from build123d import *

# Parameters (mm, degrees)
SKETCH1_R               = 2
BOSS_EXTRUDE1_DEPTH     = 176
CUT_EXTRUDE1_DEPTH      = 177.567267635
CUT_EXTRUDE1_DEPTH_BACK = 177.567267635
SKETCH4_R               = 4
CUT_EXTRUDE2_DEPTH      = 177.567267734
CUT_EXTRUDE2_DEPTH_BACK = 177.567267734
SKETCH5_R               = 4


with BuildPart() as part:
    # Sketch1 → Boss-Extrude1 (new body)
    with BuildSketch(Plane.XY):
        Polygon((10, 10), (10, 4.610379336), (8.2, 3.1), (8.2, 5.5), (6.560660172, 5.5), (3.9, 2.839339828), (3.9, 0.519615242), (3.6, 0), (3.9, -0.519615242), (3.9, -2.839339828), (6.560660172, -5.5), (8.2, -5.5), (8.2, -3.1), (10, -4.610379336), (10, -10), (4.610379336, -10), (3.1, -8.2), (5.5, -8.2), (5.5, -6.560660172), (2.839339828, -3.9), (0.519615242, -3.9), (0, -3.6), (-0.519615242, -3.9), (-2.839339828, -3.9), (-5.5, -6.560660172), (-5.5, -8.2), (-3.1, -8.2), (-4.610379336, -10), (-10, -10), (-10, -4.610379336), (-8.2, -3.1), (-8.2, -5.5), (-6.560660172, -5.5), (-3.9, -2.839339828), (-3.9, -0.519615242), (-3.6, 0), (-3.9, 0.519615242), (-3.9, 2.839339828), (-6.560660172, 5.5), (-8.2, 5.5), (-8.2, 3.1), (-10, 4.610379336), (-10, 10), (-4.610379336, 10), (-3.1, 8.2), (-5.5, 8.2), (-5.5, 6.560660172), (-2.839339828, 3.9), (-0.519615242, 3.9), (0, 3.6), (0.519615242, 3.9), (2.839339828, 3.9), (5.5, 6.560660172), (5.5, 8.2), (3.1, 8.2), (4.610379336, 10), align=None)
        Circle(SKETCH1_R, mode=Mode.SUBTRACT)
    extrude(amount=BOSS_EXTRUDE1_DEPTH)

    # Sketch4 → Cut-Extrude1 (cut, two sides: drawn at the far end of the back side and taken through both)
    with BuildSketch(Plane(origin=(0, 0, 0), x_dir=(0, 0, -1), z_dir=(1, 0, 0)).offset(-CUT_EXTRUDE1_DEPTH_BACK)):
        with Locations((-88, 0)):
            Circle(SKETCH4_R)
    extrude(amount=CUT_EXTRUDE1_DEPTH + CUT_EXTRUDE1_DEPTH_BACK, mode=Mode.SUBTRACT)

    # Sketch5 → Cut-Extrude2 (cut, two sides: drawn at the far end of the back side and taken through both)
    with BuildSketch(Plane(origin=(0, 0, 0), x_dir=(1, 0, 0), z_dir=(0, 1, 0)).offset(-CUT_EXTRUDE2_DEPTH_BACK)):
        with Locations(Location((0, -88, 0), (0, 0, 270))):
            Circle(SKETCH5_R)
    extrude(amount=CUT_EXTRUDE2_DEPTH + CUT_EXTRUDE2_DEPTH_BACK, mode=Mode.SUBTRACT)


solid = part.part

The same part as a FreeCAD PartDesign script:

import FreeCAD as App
import Part
import Sketcher

V = App.Vector
Q = App.Units.Quantity

doc = App.newDocument("Part")
body = doc.addObject("PartDesign::Body", "Body")

# Sketch on XY plane
sketch1 = body.newObject("Sketcher::SketchObject", "Sketch")
sketch1.AttachmentSupport = (doc.getObject("XY_Plane"), [""])
sketch1.MapMode = "FlatFace"
sketch1.addGeometry([
    Part.LineSegment(V(10, 4.610379, 0), V(10, 10, 0)),  # 0
    Part.LineSegment(V(10, 10, 0), V(4.610379, 10, 0)),  # 1
    Part.LineSegment(V(4.610379, 10, 0), V(3.1, 8.2, 0)),  # 2
    Part.LineSegment(V(3.1, 8.2, 0), V(5.5, 8.2, 0)),  # 3
    Part.LineSegment(V(5.5, 8.2, 0), V(5.5, 6.56066, 0)),  # 4
    Part.LineSegment(V(5.5, 6.56066, 0), V(2.83934, 3.9, 0)),  # 5
    Part.LineSegment(V(2.83934, 3.9, 0), V(0.519615, 3.9, 0)),  # 6
    Part.LineSegment(V(0.519615, 3.9, 0), V(0, 3.6, 0)),  # 7
    Part.LineSegment(V(0, 3.6, 0), V(-0.519615, 3.9, 0)),  # 8
    Part.LineSegment(V(-0.519615, 3.9, 0), V(-2.83934, 3.9, 0)),  # 9
    Part.LineSegment(V(-2.83934, 3.9, 0), V(-5.5, 6.56066, 0)),  # 10
    Part.LineSegment(V(-5.5, 6.56066, 0), V(-5.5, 8.2, 0)),  # 11
    Part.LineSegment(V(-5.5, 8.2, 0), V(-3.1, 8.2, 0)),  # 12
    Part.LineSegment(V(-3.1, 8.2, 0), V(-4.610379, 10, 0)),  # 13
    Part.LineSegment(V(-4.610379, 10, 0), V(-10, 10, 0)),  # 14
    Part.LineSegment(V(-10, 10, 0), V(-10, 4.610379, 0)),  # 15
    Part.LineSegment(V(-10, 4.610379, 0), V(-8.2, 3.1, 0)),  # 16
    Part.LineSegment(V(-8.2, 3.1, 0), V(-8.2, 5.5, 0)),  # 17
    Part.LineSegment(V(-8.2, 5.5, 0), V(-6.56066, 5.5, 0)),  # 18
    Part.LineSegment(V(-6.56066, 5.5, 0), V(-3.9, 2.83934, 0)),  # 19
    Part.LineSegment(V(-3.9, 2.83934, 0), V(-3.9, 0.519615, 0)),  # 20
    Part.LineSegment(V(-3.9, 0.519615, 0), V(-3.6, 0, 0)),  # 21
    Part.LineSegment(V(-3.6, 0, 0), V(-3.9, -0.519615, 0)),  # 22
    Part.LineSegment(V(-3.9, -0.519615, 0), V(-3.9, -2.83934, 0)),  # 23
    Part.LineSegment(V(-3.9, -2.83934, 0), V(-6.56066, -5.5, 0)),  # 24
    Part.LineSegment(V(-6.56066, -5.5, 0), V(-8.2, -5.5, 0)),  # 25
    Part.LineSegment(V(-8.2, -5.5, 0), V(-8.2, -3.1, 0)),  # 26
    Part.LineSegment(V(-8.2, -3.1, 0), V(-10, -4.610379, 0)),  # 27
    Part.LineSegment(V(-10, -4.610379, 0), V(-10, -10, 0)),  # 28
    Part.LineSegment(V(-10, -10, 0), V(-4.610379, -10, 0)),  # 29
    Part.LineSegment(V(-4.610379, -10, 0), V(-3.1, -8.2, 0)),  # 30
    Part.LineSegment(V(-3.1, -8.2, 0), V(-5.5, -8.2, 0)),  # 31
    Part.LineSegment(V(-5.5, -8.2, 0), V(-5.5, -6.56066, 0)),  # 32
    Part.LineSegment(V(-5.5, -6.56066, 0), V(-2.83934, -3.9, 0)),  # 33
    Part.LineSegment(V(-2.83934, -3.9, 0), V(-0.519615, -3.9, 0)),  # 34
    Part.LineSegment(V(-0.519615, -3.9, 0), V(0, -3.6, 0)),  # 35
    Part.LineSegment(V(0, -3.6, 0), V(0.519615, -3.9, 0)),  # 36
    Part.LineSegment(V(0.519615, -3.9, 0), V(2.83934, -3.9, 0)),  # 37
    Part.LineSegment(V(2.83934, -3.9, 0), V(5.5, -6.56066, 0)),  # 38
    Part.LineSegment(V(5.5, -6.56066, 0), V(5.5, -8.2, 0)),  # 39
    Part.LineSegment(V(5.5, -8.2, 0), V(3.1, -8.2, 0)),  # 40
    Part.LineSegment(V(3.1, -8.2, 0), V(4.610379, -10, 0)),  # 41
    Part.LineSegment(V(4.610379, -10, 0), V(10, -10, 0)),  # 42
    Part.LineSegment(V(10, -10, 0), V(10, -4.610379, 0)),  # 43
    Part.LineSegment(V(10, -4.610379, 0), V(8.2, -3.1, 0)),  # 44
    Part.LineSegment(V(8.2, -3.1, 0), V(8.2, -5.5, 0)),  # 45
    Part.LineSegment(V(8.2, -5.5, 0), V(6.56066, -5.5, 0)),  # 46
    Part.LineSegment(V(6.56066, -5.5, 0), V(3.9, -2.83934, 0)),  # 47
    Part.LineSegment(V(3.9, -2.83934, 0), V(3.9, -0.519615, 0)),  # 48
    Part.LineSegment(V(3.9, -0.519615, 0), V(3.6, 0, 0)),  # 49
    Part.LineSegment(V(3.6, 0, 0), V(3.9, 0.519615, 0)),  # 50
    Part.LineSegment(V(3.9, 0.519615, 0), V(3.9, 2.83934, 0)),  # 51
    Part.LineSegment(V(3.9, 2.83934, 0), V(6.56066, 5.5, 0)),  # 52
    Part.LineSegment(V(6.56066, 5.5, 0), V(8.2, 5.5, 0)),  # 53
    Part.LineSegment(V(8.2, 5.5, 0), V(8.2, 3.1, 0)),  # 54
    Part.LineSegment(V(8.2, 3.1, 0), V(10, 4.610379, 0)),  # 55
    Part.Circle(V(0, 0, 0), V(0, 0, 1), 2),  # 56
], False)
sketch1.addConstraint([
    Sketcher.Constraint("Coincident", 0, 2, 1, 1),
    Sketcher.Constraint("Coincident", 1, 2, 2, 1),
    Sketcher.Constraint("Coincident", 2, 2, 3, 1),
    Sketcher.Constraint("Coincident", 3, 2, 4, 1),
    Sketcher.Constraint("Coincident", 4, 2, 5, 1),
    Sketcher.Constraint("Coincident", 5, 2, 6, 1),
    Sketcher.Constraint("Coincident", 6, 2, 7, 1),
    Sketcher.Constraint("Coincident", 7, 2, 8, 1),
    Sketcher.Constraint("Coincident", 8, 2, 9, 1),
    Sketcher.Constraint("Coincident", 9, 2, 10, 1),
    Sketcher.Constraint("Coincident", 10, 2, 11, 1),
    Sketcher.Constraint("Coincident", 11, 2, 12, 1),
    Sketcher.Constraint("Coincident", 12, 2, 13, 1),
    Sketcher.Constraint("Coincident", 13, 2, 14, 1),
    Sketcher.Constraint("Coincident", 14, 2, 15, 1),
    Sketcher.Constraint("Coincident", 15, 2, 16, 1),
    Sketcher.Constraint("Coincident", 16, 2, 17, 1),
    Sketcher.Constraint("Coincident", 17, 2, 18, 1),
    Sketcher.Constraint("Coincident", 18, 2, 19, 1),
    Sketcher.Constraint("Coincident", 19, 2, 20, 1),
    Sketcher.Constraint("Coincident", 20, 2, 21, 1),
    Sketcher.Constraint("Coincident", 21, 2, 22, 1),
    Sketcher.Constraint("Coincident", 22, 2, 23, 1),
    Sketcher.Constraint("Coincident", 23, 2, 24, 1),
    Sketcher.Constraint("Coincident", 24, 2, 25, 1),
    Sketcher.Constraint("Coincident", 25, 2, 26, 1),
    Sketcher.Constraint("Coincident", 26, 2, 27, 1),
    Sketcher.Constraint("Coincident", 27, 2, 28, 1),
    Sketcher.Constraint("Coincident", 28, 2, 29, 1),
    Sketcher.Constraint("Coincident", 29, 2, 30, 1),
    Sketcher.Constraint("Coincident", 30, 2, 31, 1),
    Sketcher.Constraint("Coincident", 31, 2, 32, 1),
    Sketcher.Constraint("Coincident", 32, 2, 33, 1),
    Sketcher.Constraint("Coincident", 33, 2, 34, 1),
    Sketcher.Constraint("Coincident", 34, 2, 35, 1),
    Sketcher.Constraint("Coincident", 35, 2, 36, 1),
    Sketcher.Constraint("Coincident", 36, 2, 37, 1),
    Sketcher.Constraint("Coincident", 37, 2, 38, 1),
    Sketcher.Constraint("Coincident", 38, 2, 39, 1),
    Sketcher.Constraint("Coincident", 39, 2, 40, 1),
    Sketcher.Constraint("Coincident", 40, 2, 41, 1),
    Sketcher.Constraint("Coincident", 41, 2, 42, 1),
    Sketcher.Constraint("Coincident", 42, 2, 43, 1),
    Sketcher.Constraint("Coincident", 43, 2, 44, 1),
    Sketcher.Constraint("Coincident", 44, 2, 45, 1),
    Sketcher.Constraint("Coincident", 45, 2, 46, 1),
    Sketcher.Constraint("Coincident", 46, 2, 47, 1),
    Sketcher.Constraint("Coincident", 47, 2, 48, 1),
    Sketcher.Constraint("Coincident", 48, 2, 49, 1),
    Sketcher.Constraint("Coincident", 49, 2, 50, 1),
    Sketcher.Constraint("Coincident", 50, 2, 51, 1),
    Sketcher.Constraint("Coincident", 51, 2, 52, 1),
    Sketcher.Constraint("Coincident", 52, 2, 53, 1),
    Sketcher.Constraint("Coincident", 53, 2, 54, 1),
    Sketcher.Constraint("Coincident", 54, 2, 55, 1),
    Sketcher.Constraint("Coincident", 55, 2, 0, 1),
    Sketcher.Constraint("Vertical", 0),
    Sketcher.Constraint("Horizontal", 1),
    Sketcher.Constraint("Horizontal", 3),
    Sketcher.Constraint("Vertical", 4),
    Sketcher.Constraint("Horizontal", 6),
    Sketcher.Constraint("Horizontal", 9),
    Sketcher.Constraint("Vertical", 11),
    Sketcher.Constraint("Horizontal", 12),
    Sketcher.Constraint("Horizontal", 14),
    Sketcher.Constraint("Vertical", 15),
    Sketcher.Constraint("Vertical", 17),
    Sketcher.Constraint("Horizontal", 18),
    Sketcher.Constraint("Vertical", 20),
    Sketcher.Constraint("Vertical", 23),
    Sketcher.Constraint("Horizontal", 25),
    Sketcher.Constraint("Vertical", 26),
    Sketcher.Constraint("Vertical", 28),
    Sketcher.Constraint("Horizontal", 29),
    Sketcher.Constraint("Horizontal", 31),
    Sketcher.Constraint("Vertical", 32),
    Sketcher.Constraint("Horizontal", 34),
    Sketcher.Constraint("Horizontal", 37),
    Sketcher.Constraint("Vertical", 39),
    Sketcher.Constraint("Horizontal", 40),
    Sketcher.Constraint("Horizontal", 42),
    Sketcher.Constraint("Vertical", 43),
    Sketcher.Constraint("Vertical", 45),
    Sketcher.Constraint("Horizontal", 46),
    Sketcher.Constraint("Vertical", 48),
    Sketcher.Constraint("Vertical", 51),
    Sketcher.Constraint("Horizontal", 53),
    Sketcher.Constraint("Vertical", 54),
    Sketcher.Constraint("Coincident", 56, 3, -1, 1),
    Sketcher.Constraint("Symmetric", 0, 2, 28, 2, -1, 1),
    Sketcher.Constraint("Symmetric", 2, 2, 30, 2, -1, 1),
    Sketcher.Constraint("Symmetric", 4, 2, 32, 2, -1, 1),
    Sketcher.Constraint("Symmetric", 5, 2, 33, 2, -1, 1),
    Sketcher.Constraint("Symmetric", 7, 2, 35, 2, -1, 1),
    Sketcher.Constraint("Symmetric", 8, 2, 36, 2, -1, 1),
    Sketcher.Constraint("Symmetric", 10, 2, 38, 2, -1, 1),
    Sketcher.Constraint("Symmetric", 12, 2, 40, 2, -1, 1),
    Sketcher.Constraint("Symmetric", 13, 2, 41, 2, -1, 1),
    Sketcher.Constraint("Symmetric", 15, 2, 43, 2, -1, 1),
    Sketcher.Constraint("Symmetric", 16, 2, 44, 2, -1, 1),
    Sketcher.Constraint("Symmetric", 18, 2, 46, 2, -1, 1),
    Sketcher.Constraint("Symmetric", 19, 2, 47, 2, -1, 1),
    Sketcher.Constraint("Symmetric", 21, 2, 49, 2, -1, 1),
    Sketcher.Constraint("Symmetric", 22, 2, 50, 2, -1, 1),
    Sketcher.Constraint("Symmetric", 24, 2, 52, 2, -1, 1),
    Sketcher.Constraint("Symmetric", 26, 2, 54, 2, -1, 1),
    Sketcher.Constraint("Symmetric", 6, 2, 8, 2, -2),
    Sketcher.Constraint("Symmetric", 4, 2, 10, 2, -2),
    Sketcher.Constraint("Symmetric", 2, 2, 12, 2, -2),
    Sketcher.Constraint("Symmetric", 1, 2, 13, 2, -2),
    Sketcher.Constraint("Symmetric", 27, 2, 43, 2, -2),
    Sketcher.Constraint("Symmetric", 26, 2, 44, 2, -2),
    Sketcher.Constraint("Symmetric", 24, 2, 46, 2, -2),
    Sketcher.Constraint("Symmetric", 23, 2, 47, 2, -2),
    Sketcher.Constraint("PointOnObject", 7, 2, -2),
    Sketcher.Constraint("PointOnObject", 21, 2, -1),
    Sketcher.Constraint("Perpendicular", 5, 10),
    Sketcher.Constraint("Perpendicular", 2, 16),
    Sketcher.Constraint("Parallel", 10, 19),
    Sketcher.Constraint("Perpendicular", 7, 21),
    Sketcher.Constraint("Perpendicular", 8, 22),
    Sketcher.Constraint("Perpendicular", 19, 24),
    Sketcher.Constraint("Perpendicular", 16, 30),
    Sketcher.Constraint("Perpendicular", 21, 35),
    Sketcher.Constraint("Perpendicular", 33, 38),
    Sketcher.Constraint("Perpendicular", 35, 49),
    Sketcher.Constraint("Perpendicular", 47, 52),
    Sketcher.Constraint("Perpendicular", 41, 55),
    Sketcher.Constraint("Equal", 42, 0),
    Sketcher.Constraint("Equal", 53, 4),
    Sketcher.Constraint("Equal", 40, 17),
    Sketcher.Constraint("Equal", 37, 20),
    Sketcher.Constraint("Equal", 13, 16),
    Sketcher.Constraint("Equal", 10, 19),
    Sketcher.Constraint("Equal", 8, 21),
    Sketcher.Constraint("Diameter", 56, Q("4 mm")),
    Sketcher.Constraint("Angle", 2, Q("-130 deg")),
    Sketcher.Constraint("Angle", 7, Q("-150 deg")),
    Sketcher.Constraint("DistanceX", 3, 1, 3, 2, Q("2.4 mm")),
    Sketcher.Constraint("DistanceX", -1, 1, 0, 2, Q("10 mm")),
    Sketcher.Constraint("Distance", 7, Q("0.6 mm")),
    Sketcher.Constraint("DistanceX", -1, 1, 2, 2, Q("3.1 mm")),
    Sketcher.Constraint("DistanceY", -1, 1, 2, 2, Q("8.2 mm")),
    Sketcher.Constraint("DistanceY", -1, 1, 5, 2, Q("3.9 mm")),
    Sketcher.Constraint("DistanceX", 18, 1, 18, 2, Q("1.63934 mm")),
])
pad1 = body.newObject("PartDesign::Pad", "Pad")
pad1.Profile = sketch1
pad1.Length = 176

# Sketch on YZ plane
sketch2 = body.newObject("Sketcher::SketchObject", "Sketch001")
sketch2.AttachmentSupport = (doc.getObject("YZ_Plane"), [""])
sketch2.MapMode = "FlatFace"
sketch2.addGeometry(Part.Circle(V(0, 88, 0), V(0, 0, 1), 4), False)
sketch2.addConstraint([
    Sketcher.Constraint("PointOnObject", 0, 3, -2),
    Sketcher.Constraint("Diameter", 0, Q("8 mm")),
    Sketcher.Constraint("DistanceY", -1, 1, 0, 3, Q("88 mm")),
])
pocket1 = body.newObject("PartDesign::Pocket", "Pocket")
pocket1.Profile = sketch2
pocket1.Type = "ThroughAll"
pocket1.Midplane = True

# Sketch on XZ plane
sketch3 = body.newObject("Sketcher::SketchObject", "Sketch002")
sketch3.AttachmentSupport = (doc.getObject("XZ_Plane"), [""])
sketch3.MapMode = "FlatFace"
sketch3.addGeometry(Part.Circle(V(0, 88, 0), V(0, 0, 1), 4), False)
sketch3.addConstraint([
    Sketcher.Constraint("PointOnObject", 0, 3, -2),
    Sketcher.Constraint("Diameter", 0, Q("8 mm")),
    Sketcher.Constraint("DistanceY", -1, 1, 0, 3, Q("88 mm")),
])
pocket2 = body.newObject("PartDesign::Pocket", "Pocket001")
pocket2.Profile = sketch3
pocket2.Type = "ThroughAll"
pocket2.Midplane = True

doc.recompute()
